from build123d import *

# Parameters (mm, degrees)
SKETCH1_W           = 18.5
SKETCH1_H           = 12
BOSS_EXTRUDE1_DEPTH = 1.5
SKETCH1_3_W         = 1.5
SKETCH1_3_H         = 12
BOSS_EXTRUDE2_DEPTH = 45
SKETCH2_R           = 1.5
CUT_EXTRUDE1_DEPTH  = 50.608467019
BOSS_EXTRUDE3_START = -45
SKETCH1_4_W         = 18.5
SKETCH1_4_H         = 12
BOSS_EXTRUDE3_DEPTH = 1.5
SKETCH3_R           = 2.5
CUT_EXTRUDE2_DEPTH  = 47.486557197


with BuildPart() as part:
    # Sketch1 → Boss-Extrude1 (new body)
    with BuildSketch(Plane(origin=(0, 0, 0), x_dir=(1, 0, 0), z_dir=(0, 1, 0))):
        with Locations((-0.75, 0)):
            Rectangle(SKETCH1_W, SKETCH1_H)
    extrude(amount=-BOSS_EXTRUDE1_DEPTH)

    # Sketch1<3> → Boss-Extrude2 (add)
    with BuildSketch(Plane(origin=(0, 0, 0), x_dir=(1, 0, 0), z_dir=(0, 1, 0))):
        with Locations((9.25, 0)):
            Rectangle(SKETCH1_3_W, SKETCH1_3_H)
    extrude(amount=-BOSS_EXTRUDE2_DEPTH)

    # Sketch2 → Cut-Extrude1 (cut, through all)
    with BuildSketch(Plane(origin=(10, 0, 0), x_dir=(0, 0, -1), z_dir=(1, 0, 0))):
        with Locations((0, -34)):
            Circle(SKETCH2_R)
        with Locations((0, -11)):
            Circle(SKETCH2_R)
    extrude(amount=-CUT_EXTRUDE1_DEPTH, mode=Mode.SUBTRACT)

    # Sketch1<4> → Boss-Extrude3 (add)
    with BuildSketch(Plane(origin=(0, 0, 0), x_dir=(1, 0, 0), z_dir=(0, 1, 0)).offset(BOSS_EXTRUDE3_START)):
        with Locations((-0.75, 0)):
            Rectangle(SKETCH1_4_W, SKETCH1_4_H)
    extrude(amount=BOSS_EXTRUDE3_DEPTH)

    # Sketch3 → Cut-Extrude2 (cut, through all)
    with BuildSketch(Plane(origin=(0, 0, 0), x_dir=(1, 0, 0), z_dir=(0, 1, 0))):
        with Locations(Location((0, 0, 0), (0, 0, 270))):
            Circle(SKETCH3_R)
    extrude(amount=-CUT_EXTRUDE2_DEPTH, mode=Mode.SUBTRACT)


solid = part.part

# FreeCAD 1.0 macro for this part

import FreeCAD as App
import Part
import Sketcher
from FreeCAD import Vector
Q = App.Units.Quantity


def add_polygon(sketch, points):
    """Adds a closed chain of lines whose ends are joined by coincident constraints."""
    first, n = sketch.GeometryCount, len(points)
    for a, b in zip(points, points[1:] + points[:1]):
        sketch.addGeometry(Part.LineSegment(App.Vector(*a, 0), App.Vector(*b, 0)), False)
    for i in range(n):
        sketch.addConstraint(Sketcher.Constraint("Coincident", first + i, 2, first + (i + 1) % n, 1))

doc = App.newDocument("Part")
body = doc.addObject("PartDesign::Body", "Body")

sketch1 = body.newObject("Sketcher::SketchObject", "Sketch")
sketch1.AttachmentSupport = (doc.getObject("XZ_Plane"), [""])
sketch1.MapMode = "FlatFace"
add_polygon(sketch1, [(-10, -6), (-10, 6), (8, 6), (8, -6)])
sketch1.addConstraint(Sketcher.Constraint("Vertical", 0))
sketch1.addConstraint(Sketcher.Constraint("Horizontal", 1))
sketch1.addConstraint(Sketcher.Constraint("Vertical", 2))
sketch1.addConstraint(Sketcher.Constraint("Horizontal", 3))
sketch1.addConstraint(Sketcher.Constraint("DistanceY", 0, 1, 0, 2, Q("12 mm")))
sketch1.addConstraint(Sketcher.Constraint("DistanceX", 1, 1, 1, 2, Q("18.5 mm")))
sketch1.addConstraint(Sketcher.Constraint("DistanceX", 0, 2, -1, 1, Q("10 mm")))
sketch1.addConstraint(Sketcher.Constraint("DistanceY", -1, 1, 0, 2, Q("6 mm")))
pad1 = body.newObject("PartDesign::Pad", "Pad")
pad1.Profile = sketch1
pad1.Length = 1.5

sketch2 = body.newObject("Sketcher::SketchObject", "Sketch001")
sketch2.AttachmentSupport = (doc.getObject("XZ_Plane"), [""])
sketch2.MapMode = "FlatFace"
add_polygon(sketch2, [(8.5, -6), (8.5, 6), (10, 6), (10, -6)])
sketch2.addConstraint(Sketcher.Constraint("Vertical", 0))
sketch2.addConstraint(Sketcher.Constraint("Horizontal", 1))
sketch2.addConstraint(Sketcher.Constraint("Vertical", 2))
sketch2.addConstraint(Sketcher.Constraint("Horizontal", 3))
sketch2.addConstraint(Sketcher.Constraint("DistanceY", 0, 1, 0, 2, Q("12 mm")))
sketch2.addConstraint(Sketcher.Constraint("DistanceX", 1, 1, 1, 2, Q("1.5 mm")))
sketch2.addConstraint(Sketcher.Constraint("DistanceY", -1, 1, 0, 2, Q("6 mm")))
sketch2.addConstraint(Sketcher.Constraint("DistanceX", -1, 1, 1, 2, Q("10 mm")))
pad2 = body.newObject("PartDesign::Pad", "Pad001")
pad2.Profile = sketch2
pad2.Length = 45

sketch3 = body.newObject("Sketcher::SketchObject", "Sketch002")
sketch3.AttachmentSupport = (doc.getObject("YZ_Plane"), [""])
sketch3.MapMode = "FlatFace"
sketch3.AttachmentOffset = App.Placement(Vector(0, 0, 10), App.Rotation())
sketch3.addGeometry(Part.Circle(Vector(-34, 0, 0), Vector(0, 0, 1), 1.5), False)
sketch3.addGeometry(Part.Circle(Vector(-11, 0, 0), Vector(0, 0, 1), 1.5), False)
sketch3.addConstraint(Sketcher.Constraint("Equal", 0, 1))
sketch3.addConstraint(Sketcher.Constraint("PointOnObject", 0, 3, -1))
sketch3.addConstraint(Sketcher.Constraint("PointOnObject", 1, 3, -1))
sketch3.addConstraint(Sketcher.Constraint("Diameter", 0, Q("3 mm")))
sketch3.addConstraint(Sketcher.Constraint("DistanceX", 0, 3, -1, 1, Q("34 mm")))
sketch3.addConstraint(Sketcher.Constraint("DistanceX", 1, 3, -1, 1, Q("11 mm")))
pocket1 = body.newObject("PartDesign::Pocket", "Pocket")
pocket1.Profile = sketch3
pocket1.Type = "ThroughAll"

sketch4 = body.newObject("Sketcher::SketchObject", "Sketch003")
sketch4.AttachmentSupport = (doc.getObject("XZ_Plane"), [""])
sketch4.MapMode = "FlatFace"
sketch4.AttachmentOffset = App.Placement(Vector(0, 0, 45), App.Rotation())
add_polygon(sketch4, [(-10, -6), (-10, 6), (8, 6), (8, -6)])
sketch4.addConstraint(Sketcher.Constraint("Vertical", 0))
sketch4.addConstraint(Sketcher.Constraint("Horizontal", 1))
sketch4.addConstraint(Sketcher.Constraint("Vertical", 2))
sketch4.addConstraint(Sketcher.Constraint("Horizontal", 3))
sketch4.addConstraint(Sketcher.Constraint("DistanceY", 0, 1, 0, 2, Q("12 mm")))
sketch4.addConstraint(Sketcher.Constraint("DistanceX", 1, 1, 1, 2, Q("18.5 mm")))
sketch4.addConstraint(Sketcher.Constraint("DistanceX", 0, 2, -1, 1, Q("10 mm")))
sketch4.addConstraint(Sketcher.Constraint("DistanceY", -1, 1, 0, 2, Q("6 mm")))
pad3 = body.newObject("PartDesign::Pad", "Pad002")
pad3.Profile = sketch4
pad3.Length = 1.5
pad3.Reversed = True

sketch5 = body.newObject("Sketcher::SketchObject", "Sketch004")
sketch5.AttachmentSupport = (doc.getObject("XZ_Plane"), [""])
sketch5.MapMode = "FlatFace"
sketch5.addGeometry(Part.Circle(Vector(0, 0, 0), Vector(0, 0, 1), 2.5), False)
sketch5.addConstraint(Sketcher.Constraint("Coincident", 0, 3, -1, 1))
sketch5.addConstraint(Sketcher.Constraint("Diameter", 0, Q("5 mm")))
pocket2 = body.newObject("PartDesign::Pocket", "Pocket001")
pocket2.Profile = sketch5
pocket2.Type = "ThroughAll"
pocket2.Reversed = True

doc.recompute()
